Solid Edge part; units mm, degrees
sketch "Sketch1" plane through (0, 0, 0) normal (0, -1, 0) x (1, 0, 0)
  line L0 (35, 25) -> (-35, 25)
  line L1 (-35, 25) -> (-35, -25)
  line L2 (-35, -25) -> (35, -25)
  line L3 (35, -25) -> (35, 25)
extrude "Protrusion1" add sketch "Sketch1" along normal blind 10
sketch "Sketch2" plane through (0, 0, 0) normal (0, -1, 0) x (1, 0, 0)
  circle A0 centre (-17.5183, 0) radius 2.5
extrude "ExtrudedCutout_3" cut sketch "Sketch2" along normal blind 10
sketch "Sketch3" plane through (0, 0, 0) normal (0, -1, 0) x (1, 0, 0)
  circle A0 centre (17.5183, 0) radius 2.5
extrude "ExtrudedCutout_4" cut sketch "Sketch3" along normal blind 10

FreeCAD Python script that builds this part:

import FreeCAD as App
import Part
import Sketcher
from FreeCAD import Vector
Q = App.Units.Quantity

doc = App.newDocument("Part")
params = doc.addObject("Spreadsheet::Sheet", "Params")
for row, (alias, value) in enumerate([
    ("sketch1_width", "70 mm"),
    ("sketch1_height", "50 mm"),
    ("pad1_length", "10 mm"),
    ("sketch2_diameter", "5 mm"),
    ("pocket1_length", "10 mm"),
    ("sketch3_diameter", "5 mm"),
    ("pocket2_length", "10 mm"),
], start=1):
    params.set(f"A{row}", alias)
    params.set(f"B{row}", "=" + value)
    params.setAlias(f"B{row}", alias)

body = doc.addObject("PartDesign::Body", "Body")

sketch1 = doc.addObject("Sketcher::SketchObject", "Sketch")
body.addObject(sketch1)
sketch1.AttachmentSupport = (doc.XZ_Plane, [""])
sketch1.MapMode = "FlatFace"
sketch1.addGeometry(Part.LineSegment(Vector(35, -25, 0), Vector(35, 25, 0)), False)
sketch1.addGeometry(Part.LineSegment(Vector(35, 25, 0), Vector(-35, 25, 0)), False)
sketch1.addGeometry(Part.LineSegment(Vector(-35, 25, 0), Vector(-35, -25, 0)), False)
sketch1.addGeometry(Part.LineSegment(Vector(-35, -25, 0), Vector(35, -25, 0)), False)
sketch1.addConstraint(Sketcher.Constraint("Coincident", 0, 2, 1, 1))
sketch1.addConstraint(Sketcher.Constraint("Coincident", 1, 2, 2, 1))
sketch1.addConstraint(Sketcher.Constraint("Coincident", 2, 2, 3, 1))
sketch1.addConstraint(Sketcher.Constraint("Coincident", 3, 2, 0, 1))
sketch1.addConstraint(Sketcher.Constraint("Vertical", 0))
sketch1.addConstraint(Sketcher.Constraint("Horizontal", 1))
sketch1.addConstraint(Sketcher.Constraint("Vertical", 2))
sketch1.addConstraint(Sketcher.Constraint("Horizontal", 3))
sketch1.addConstraint(Sketcher.Constraint("Symmetric", 0, 2, 2, 2, -1, 1))
sketch1.addConstraint(Sketcher.Constraint("DistanceX", 1, 2, 1, 1, Q("70 mm")))
sketch1.addConstraint(Sketcher.Constraint("DistanceY", 0, 1, 0, 2, Q("50 mm")))
sketch1.setExpression("Constraints[9]", "Params.sketch1_width")
sketch1.setExpression("Constraints[10]", "Params.sketch1_height")
pad1 = doc.addObject("PartDesign::Pad", "Pad")
body.addObject(pad1)
pad1.Profile = sketch1
pad1.setExpression("Length", "Params.pad1_length")

sketch2 = doc.addObject("Sketcher::SketchObject", "Sketch001")
body.addObject(sketch2)
sketch2.AttachmentSupport = (doc.XZ_Plane, [""])
sketch2.MapMode = "FlatFace"
sketch2.addGeometry(Part.Circle(Vector(-17.5, 0, 0), Vector(0, 0, 1), 2.5), False)
sketch2.addConstraint(Sketcher.Constraint("PointOnObject", 0, 3, -1))
sketch2.addConstraint(Sketcher.Constraint("Diameter", 0, Q("5 mm")))
sketch2.addConstraint(Sketcher.Constraint("DistanceX", 0, 3, -1, 1, Q("17.5183 mm")))
sketch2.setExpression("Constraints[1]", "Params.sketch2_diameter")
pocket1 = doc.addObject("PartDesign::Pocket", "Pocket")
body.addObject(pocket1)
pocket1.Profile = sketch2
pocket1.setExpression("Length", "Params.pocket1_length")
pocket1.Reversed = True

sketch3 = doc.addObject("Sketcher::SketchObject", "Sketch002")
body.addObject(sketch3)
sketch3.AttachmentSupport = (doc.XZ_Plane, [""])
sketch3.MapMode = "FlatFace"
sketch3.addGeometry(Part.Circle(Vector(17.5, 0, 0), Vector(0, 0, 1), 2.5), False)
sketch3.addConstraint(Sketcher.Constraint("PointOnObject", 0, 3, -1))
sketch3.addConstraint(Sketcher.Constraint("Diameter", 0, Q("5 mm")))
sketch3.addConstraint(Sketcher.Constraint("DistanceX", -1, 1, 0, 3, Q("17.5183 mm")))
sketch3.setExpression("Constraints[1]", "Params.sketch3_diameter")
pocket2 = doc.addObject("PartDesign::Pocket", "Pocket001")
body.addObject(pocket2)
pocket2.Profile = sketch3
pocket2.setExpression("Length", "Params.pocket2_length")
pocket2.Reversed = True

doc.recompute()
